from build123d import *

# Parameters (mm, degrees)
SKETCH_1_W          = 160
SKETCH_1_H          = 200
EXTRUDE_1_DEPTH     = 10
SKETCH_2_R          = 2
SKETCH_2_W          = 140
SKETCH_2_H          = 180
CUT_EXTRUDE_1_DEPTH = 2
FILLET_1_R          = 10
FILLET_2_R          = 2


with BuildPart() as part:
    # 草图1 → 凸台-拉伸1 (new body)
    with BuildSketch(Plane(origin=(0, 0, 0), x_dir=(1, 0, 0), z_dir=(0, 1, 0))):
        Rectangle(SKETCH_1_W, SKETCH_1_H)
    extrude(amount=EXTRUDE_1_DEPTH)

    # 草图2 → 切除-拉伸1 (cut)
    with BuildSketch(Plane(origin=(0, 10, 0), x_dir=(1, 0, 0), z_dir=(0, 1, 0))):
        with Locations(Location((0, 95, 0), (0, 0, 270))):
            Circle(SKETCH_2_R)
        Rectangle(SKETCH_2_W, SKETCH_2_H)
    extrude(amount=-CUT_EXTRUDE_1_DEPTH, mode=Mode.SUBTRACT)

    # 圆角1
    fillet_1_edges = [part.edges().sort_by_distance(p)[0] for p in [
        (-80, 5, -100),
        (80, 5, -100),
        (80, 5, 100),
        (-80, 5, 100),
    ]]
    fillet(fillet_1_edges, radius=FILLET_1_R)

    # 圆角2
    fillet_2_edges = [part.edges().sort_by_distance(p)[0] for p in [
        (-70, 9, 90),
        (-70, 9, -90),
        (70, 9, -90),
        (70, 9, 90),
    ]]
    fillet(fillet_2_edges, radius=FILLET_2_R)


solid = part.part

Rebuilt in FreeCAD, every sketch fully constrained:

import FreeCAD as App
import Part
import Sketcher
Q = App.Units.Quantity


def edges_at(feature, points):
    """Names of the edges that pass closest to the given points."""
    edges = feature.Shape.Edges
    near = lambda p: min(range(len(edges)), key=lambda i: edges[i].distToShape(Part.Vertex(*p))[0])
    return sorted({f"Edge{near(p) + 1}" for p in points})

doc = App.newDocument("Part")
body = doc.addObject("PartDesign::Body", "Body")

sketch1 = doc.addObject("Sketcher::SketchObject", "Sketch")
body.addObject(sketch1)
sketch1.AttachmentSupport = (doc.XZ_Plane, [""])
sketch1.MapMode = "FlatFace"
sketch1.addGeometry(Part.LineSegment(App.Vector(-80, -100, 0), App.Vector(-80, 100, 0)), False)
sketch1.addGeometry(Part.LineSegment(App.Vector(-80, 100, 0), App.Vector(80, 100, 0)), False)
sketch1.addGeometry(Part.LineSegment(App.Vector(80, 100, 0), App.Vector(80, -100, 0)), False)
sketch1.addGeometry(Part.LineSegment(App.Vector(80, -100, 0), App.Vector(-80, -100, 0)), False)
sketch1.addConstraint(Sketcher.Constraint("Coincident", 0, 2, 1, 1))
sketch1.addConstraint(Sketcher.Constraint("Coincident", 1, 2, 2, 1))
sketch1.addConstraint(Sketcher.Constraint("Coincident", 2, 2, 3, 1))
sketch1.addConstraint(Sketcher.Constraint("Coincident", 3, 2, 0, 1))
sketch1.addConstraint(Sketcher.Constraint("Vertical", 0))
sketch1.addConstraint(Sketcher.Constraint("Horizontal", 1))
sketch1.addConstraint(Sketcher.Constraint("Vertical", 2))
sketch1.addConstraint(Sketcher.Constraint("Horizontal", 3))
sketch1.addConstraint(Sketcher.Constraint("Symmetric", 0, 2, 2, 2, -1, 1))
sketch1.addConstraint(Sketcher.Constraint("DistanceX", 1, 1, 1, 2, Q("160 mm")))
sketch1.addConstraint(Sketcher.Constraint("DistanceY", 0, 1, 0, 2, Q("200 mm")))
pad1 = doc.addObject("PartDesign::Pad", "Pad")
body.addObject(pad1)
pad1.Profile = sketch1
pad1.Length = 10
pad1.Reversed = True

sketch2 = doc.addObject("Sketcher::SketchObject", "Sketch001")
body.addObject(sketch2)
sketch2.AttachmentSupport = (doc.XZ_Plane, [""])
sketch2.MapMode = "FlatFace"
sketch2.AttachmentOffset = App.Placement(App.Vector(0, 0, -10), App.Rotation())
sketch2.addGeometry(Part.Circle(App.Vector(0, -95, 0), App.Vector(0, 0, 1), 2), False)
sketch2.addGeometry(Part.LineSegment(App.Vector(-70, -90, 0), App.Vector(-70, 90, 0)), False)
sketch2.addGeometry(Part.LineSegment(App.Vector(-70, 90, 0), App.Vector(70, 90, 0)), False)
sketch2.addGeometry(Part.LineSegment(App.Vector(70, 90, 0), App.Vector(70, -90, 0)), False)
sketch2.addGeometry(Part.LineSegment(App.Vector(70, -90, 0), App.Vector(-70, -90, 0)), False)
sketch2.addConstraint(Sketcher.Constraint("Coincident", 1, 2, 2, 1))
sketch2.addConstraint(Sketcher.Constraint("Coincident", 2, 2, 3, 1))
sketch2.addConstraint(Sketcher.Constraint("Coincident", 3, 2, 4, 1))
sketch2.addConstraint(Sketcher.Constraint("Coincident", 4, 2, 1, 1))
sketch2.addConstraint(Sketcher.Constraint("Vertical", 1))
sketch2.addConstraint(Sketcher.Constraint("Horizontal", 2))
sketch2.addConstraint(Sketcher.Constraint("Vertical", 3))
sketch2.addConstraint(Sketcher.Constraint("Horizontal", 4))
sketch2.addConstraint(Sketcher.Constraint("Symmetric", 1, 2, 3, 2, -1, 1))
sketch2.addConstraint(Sketcher.Constraint("PointOnObject", 0, 3, -2))
sketch2.addConstraint(Sketcher.Constraint("Diameter", 0, Q("4 mm")))
sketch2.addConstraint(Sketcher.Constraint("DistanceX", 2, 1, 2, 2, Q("140 mm")))
sketch2.addConstraint(Sketcher.Constraint("DistanceY", 1, 1, 1, 2, Q("180 mm")))
sketch2.addConstraint(Sketcher.Constraint("DistanceY", 0, 3, -1, 1, Q("95 mm")))
pocket1 = doc.addObject("PartDesign::Pocket", "Pocket")
body.addObject(pocket1)
pocket1.Profile = sketch2
pocket1.Length = 2
pocket1.Reversed = True
doc.recompute()

fillet = doc.addObject("PartDesign::Fillet", "Fillet")
body.addObject(fillet)
fillet.Base = (pocket1, edges_at(pocket1, [
    (-80, 5, -100),
    (80, 5, -100),
    (80, 5, 100),
    (-80, 5, 100),
]))
fillet.Radius = 10
doc.recompute()

fillet2 = doc.addObject("PartDesign::Fillet", "Fillet001")
body.addObject(fillet2)
fillet2.Base = (fillet, edges_at(fillet, [
    (-70, 9, 90),
    (-70, 9, -90),
    (70, 9, -90),
    (70, 9, 90),
]))
fillet2.Radius = 2

doc.recompute()
